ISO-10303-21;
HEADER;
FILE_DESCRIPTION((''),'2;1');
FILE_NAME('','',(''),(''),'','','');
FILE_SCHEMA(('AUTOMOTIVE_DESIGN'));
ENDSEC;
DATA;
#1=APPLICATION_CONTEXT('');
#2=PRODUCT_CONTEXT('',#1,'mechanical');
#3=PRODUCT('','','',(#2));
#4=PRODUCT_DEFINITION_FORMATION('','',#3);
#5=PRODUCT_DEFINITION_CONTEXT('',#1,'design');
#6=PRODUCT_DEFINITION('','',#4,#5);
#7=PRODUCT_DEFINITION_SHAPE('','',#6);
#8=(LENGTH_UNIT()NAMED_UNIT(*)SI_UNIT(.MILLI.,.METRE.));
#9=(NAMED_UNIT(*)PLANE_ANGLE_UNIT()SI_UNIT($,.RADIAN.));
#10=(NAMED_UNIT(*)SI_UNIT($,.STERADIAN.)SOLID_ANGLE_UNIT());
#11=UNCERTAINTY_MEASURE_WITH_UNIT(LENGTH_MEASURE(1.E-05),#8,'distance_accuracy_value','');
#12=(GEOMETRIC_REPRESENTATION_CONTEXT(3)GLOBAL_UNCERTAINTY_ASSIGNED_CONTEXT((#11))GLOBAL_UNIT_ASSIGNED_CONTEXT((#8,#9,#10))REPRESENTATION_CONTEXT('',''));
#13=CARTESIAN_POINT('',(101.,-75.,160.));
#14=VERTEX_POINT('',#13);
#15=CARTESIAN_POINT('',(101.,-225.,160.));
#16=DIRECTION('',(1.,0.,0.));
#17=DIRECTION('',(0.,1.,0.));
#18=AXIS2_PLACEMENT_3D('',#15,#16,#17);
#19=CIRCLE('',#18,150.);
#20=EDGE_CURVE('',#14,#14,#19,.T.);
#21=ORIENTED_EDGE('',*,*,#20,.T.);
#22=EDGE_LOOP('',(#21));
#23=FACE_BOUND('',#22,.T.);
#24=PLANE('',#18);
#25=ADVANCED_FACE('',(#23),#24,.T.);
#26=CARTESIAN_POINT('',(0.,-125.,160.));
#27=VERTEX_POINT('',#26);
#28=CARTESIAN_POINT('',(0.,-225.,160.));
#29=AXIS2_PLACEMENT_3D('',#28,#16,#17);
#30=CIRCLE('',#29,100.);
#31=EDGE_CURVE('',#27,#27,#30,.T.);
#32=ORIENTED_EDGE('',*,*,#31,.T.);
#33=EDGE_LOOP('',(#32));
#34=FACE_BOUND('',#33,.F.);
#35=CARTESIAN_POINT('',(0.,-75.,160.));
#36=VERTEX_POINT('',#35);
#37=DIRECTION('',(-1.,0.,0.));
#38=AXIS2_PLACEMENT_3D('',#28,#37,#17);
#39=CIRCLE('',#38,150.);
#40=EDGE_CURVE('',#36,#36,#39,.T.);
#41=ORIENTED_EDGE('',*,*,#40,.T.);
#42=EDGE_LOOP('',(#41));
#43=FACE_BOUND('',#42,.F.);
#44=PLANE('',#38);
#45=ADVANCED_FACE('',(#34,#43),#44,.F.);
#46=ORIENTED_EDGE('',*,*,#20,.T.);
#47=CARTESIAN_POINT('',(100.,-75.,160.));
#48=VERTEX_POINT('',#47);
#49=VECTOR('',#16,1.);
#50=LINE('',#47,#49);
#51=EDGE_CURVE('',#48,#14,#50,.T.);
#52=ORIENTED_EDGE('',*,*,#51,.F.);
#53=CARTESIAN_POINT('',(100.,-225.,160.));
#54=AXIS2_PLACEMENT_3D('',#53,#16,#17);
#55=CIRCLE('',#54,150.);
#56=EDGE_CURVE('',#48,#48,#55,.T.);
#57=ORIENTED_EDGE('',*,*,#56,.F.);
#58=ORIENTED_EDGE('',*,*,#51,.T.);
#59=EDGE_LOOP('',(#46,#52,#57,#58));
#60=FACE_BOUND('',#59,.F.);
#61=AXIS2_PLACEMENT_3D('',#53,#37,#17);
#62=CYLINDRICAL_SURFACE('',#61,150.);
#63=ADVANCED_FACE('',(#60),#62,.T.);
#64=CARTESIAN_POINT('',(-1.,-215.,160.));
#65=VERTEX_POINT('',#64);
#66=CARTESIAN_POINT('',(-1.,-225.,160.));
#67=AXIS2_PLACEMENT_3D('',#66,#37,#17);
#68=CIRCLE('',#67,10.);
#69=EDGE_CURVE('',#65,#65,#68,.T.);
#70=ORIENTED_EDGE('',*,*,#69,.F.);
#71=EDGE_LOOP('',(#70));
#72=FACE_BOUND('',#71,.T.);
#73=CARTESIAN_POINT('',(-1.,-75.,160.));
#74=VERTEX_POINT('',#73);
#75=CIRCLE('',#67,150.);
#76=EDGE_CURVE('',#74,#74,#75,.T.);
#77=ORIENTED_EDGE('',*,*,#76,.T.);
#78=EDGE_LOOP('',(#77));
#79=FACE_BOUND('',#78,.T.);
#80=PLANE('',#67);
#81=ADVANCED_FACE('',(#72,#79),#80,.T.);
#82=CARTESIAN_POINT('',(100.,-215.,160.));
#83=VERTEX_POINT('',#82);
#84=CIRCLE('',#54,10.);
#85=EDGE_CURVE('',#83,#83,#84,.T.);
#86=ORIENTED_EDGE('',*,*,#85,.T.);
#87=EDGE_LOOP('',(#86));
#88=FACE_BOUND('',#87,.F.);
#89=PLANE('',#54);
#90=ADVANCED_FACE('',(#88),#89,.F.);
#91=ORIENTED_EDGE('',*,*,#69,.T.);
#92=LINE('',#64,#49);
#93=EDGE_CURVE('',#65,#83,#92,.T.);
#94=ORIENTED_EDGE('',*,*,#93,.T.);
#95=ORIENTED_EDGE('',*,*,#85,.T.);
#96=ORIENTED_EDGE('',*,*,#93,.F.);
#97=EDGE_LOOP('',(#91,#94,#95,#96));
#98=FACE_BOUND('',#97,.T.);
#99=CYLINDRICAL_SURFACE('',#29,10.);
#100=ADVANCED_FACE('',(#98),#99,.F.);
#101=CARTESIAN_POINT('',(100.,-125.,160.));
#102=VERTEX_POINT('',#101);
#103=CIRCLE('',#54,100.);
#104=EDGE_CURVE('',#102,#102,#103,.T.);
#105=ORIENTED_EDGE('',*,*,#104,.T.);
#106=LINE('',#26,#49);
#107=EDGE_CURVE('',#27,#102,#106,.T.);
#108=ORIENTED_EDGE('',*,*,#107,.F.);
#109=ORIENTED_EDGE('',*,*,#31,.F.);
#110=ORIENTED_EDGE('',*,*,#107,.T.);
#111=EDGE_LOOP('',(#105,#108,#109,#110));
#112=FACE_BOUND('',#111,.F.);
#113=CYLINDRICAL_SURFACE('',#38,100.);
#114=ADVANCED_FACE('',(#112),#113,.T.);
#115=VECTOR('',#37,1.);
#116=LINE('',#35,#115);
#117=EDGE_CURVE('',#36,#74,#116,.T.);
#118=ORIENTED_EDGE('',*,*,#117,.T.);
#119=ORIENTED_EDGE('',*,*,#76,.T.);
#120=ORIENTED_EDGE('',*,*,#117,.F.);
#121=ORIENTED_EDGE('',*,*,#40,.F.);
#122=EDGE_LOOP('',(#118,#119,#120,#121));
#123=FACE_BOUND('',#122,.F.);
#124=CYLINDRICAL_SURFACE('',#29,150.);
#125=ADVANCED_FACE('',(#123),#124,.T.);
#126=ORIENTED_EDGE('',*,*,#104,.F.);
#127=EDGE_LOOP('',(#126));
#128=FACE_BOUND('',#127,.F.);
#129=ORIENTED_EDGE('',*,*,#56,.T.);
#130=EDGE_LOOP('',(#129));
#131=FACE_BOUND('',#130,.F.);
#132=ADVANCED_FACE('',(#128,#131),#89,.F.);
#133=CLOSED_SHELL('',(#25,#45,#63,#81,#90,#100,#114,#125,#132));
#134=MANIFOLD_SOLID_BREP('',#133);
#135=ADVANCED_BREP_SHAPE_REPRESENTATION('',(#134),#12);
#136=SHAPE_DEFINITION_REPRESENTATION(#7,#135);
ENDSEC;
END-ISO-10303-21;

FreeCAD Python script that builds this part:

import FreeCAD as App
import Part
import Sketcher

V = App.Vector
Q = App.Units.Quantity

doc = App.newDocument("Part")
body = doc.addObject("PartDesign::Body", "Body")

# Sketch on YZ plane
sketch1 = doc.addObject("Sketcher::SketchObject", "Sketch")
body.addObject(sketch1)
sketch1.AttachmentSupport = (doc.YZ_Plane, [""])
sketch1.MapMode = "FlatFace"
sketch1.addGeometry([
    Part.Circle(V(0, 0, 0), V(0, 0, 1), 100),
    Part.Circle(V(0, 0, 0), V(0, 0, 1), 10),
], False)
sketch1.addConstraint([
    Sketcher.Constraint("Coincident", 0, 3, -1, 1),
    Sketcher.Constraint("Coincident", 1, 3, -1, 1),
    Sketcher.Constraint("Diameter", 0, Q("200 mm")),
    Sketcher.Constraint("Diameter", 1, Q("20 mm")),
])
pad1 = doc.addObject("PartDesign::Pad", "Pad")
body.addObject(pad1)
pad1.Profile = sketch1
pad1.Length = 100

# Sketch on YZ plane
sketch2 = doc.addObject("Sketcher::SketchObject", "Sketch001")
body.addObject(sketch2)
sketch2.AttachmentSupport = (doc.YZ_Plane, [""])
sketch2.MapMode = "FlatFace"
sketch2.addGeometry([
    Part.Circle(V(0, 0, 0), V(0, 0, 1), 150),
    Part.Circle(V(0, 0, 0), V(0, 0, 1), 10),
], False)
sketch2.addConstraint([
    Sketcher.Constraint("Coincident", 0, 3, -1, 1),
    Sketcher.Constraint("Coincident", 1, 3, -1, 1),
    Sketcher.Constraint("Diameter", 0, Q("300 mm")),
    Sketcher.Constraint("Diameter", 1, Q("20 mm")),
])
pad2 = doc.addObject("PartDesign::Pad", "Pad001")
body.addObject(pad2)
pad2.Profile = sketch2
pad2.Length = 1
pad2.Reversed = True

# Sketch on YZ plane
sketch3 = doc.addObject("Sketcher::SketchObject", "Sketch002")
body.addObject(sketch3)
sketch3.AttachmentSupport = (doc.YZ_Plane, [""])
sketch3.MapMode = "FlatFace"
sketch3.AttachmentOffset = App.Placement(V(0, 0, 100), App.Rotation())
sketch3.addGeometry(Part.Circle(V(0, 0, 0), V(0, 0, 1), 150), False)
sketch3.addConstraint([
    Sketcher.Constraint("Coincident", 0, 3, -1, 1),
    Sketcher.Constraint("Diameter", 0, Q("300 mm")),
])
pad3 = doc.addObject("PartDesign::Pad", "Pad002")
body.addObject(pad3)
pad3.Profile = sketch3
pad3.Length = 1
body2 = doc.addObject("PartDesign::Body", "Body001")
doc.recompute()

body.Placement = App.Placement(V(0, -225, 160), App.Rotation(V(0, 0, 1), 0))
boolean = doc.addObject("PartDesign::Boolean", "Boolean")
body2.addObject(boolean)
boolean.Type = "Fuse"
boolean.addObjects([body])

doc.recompute()
